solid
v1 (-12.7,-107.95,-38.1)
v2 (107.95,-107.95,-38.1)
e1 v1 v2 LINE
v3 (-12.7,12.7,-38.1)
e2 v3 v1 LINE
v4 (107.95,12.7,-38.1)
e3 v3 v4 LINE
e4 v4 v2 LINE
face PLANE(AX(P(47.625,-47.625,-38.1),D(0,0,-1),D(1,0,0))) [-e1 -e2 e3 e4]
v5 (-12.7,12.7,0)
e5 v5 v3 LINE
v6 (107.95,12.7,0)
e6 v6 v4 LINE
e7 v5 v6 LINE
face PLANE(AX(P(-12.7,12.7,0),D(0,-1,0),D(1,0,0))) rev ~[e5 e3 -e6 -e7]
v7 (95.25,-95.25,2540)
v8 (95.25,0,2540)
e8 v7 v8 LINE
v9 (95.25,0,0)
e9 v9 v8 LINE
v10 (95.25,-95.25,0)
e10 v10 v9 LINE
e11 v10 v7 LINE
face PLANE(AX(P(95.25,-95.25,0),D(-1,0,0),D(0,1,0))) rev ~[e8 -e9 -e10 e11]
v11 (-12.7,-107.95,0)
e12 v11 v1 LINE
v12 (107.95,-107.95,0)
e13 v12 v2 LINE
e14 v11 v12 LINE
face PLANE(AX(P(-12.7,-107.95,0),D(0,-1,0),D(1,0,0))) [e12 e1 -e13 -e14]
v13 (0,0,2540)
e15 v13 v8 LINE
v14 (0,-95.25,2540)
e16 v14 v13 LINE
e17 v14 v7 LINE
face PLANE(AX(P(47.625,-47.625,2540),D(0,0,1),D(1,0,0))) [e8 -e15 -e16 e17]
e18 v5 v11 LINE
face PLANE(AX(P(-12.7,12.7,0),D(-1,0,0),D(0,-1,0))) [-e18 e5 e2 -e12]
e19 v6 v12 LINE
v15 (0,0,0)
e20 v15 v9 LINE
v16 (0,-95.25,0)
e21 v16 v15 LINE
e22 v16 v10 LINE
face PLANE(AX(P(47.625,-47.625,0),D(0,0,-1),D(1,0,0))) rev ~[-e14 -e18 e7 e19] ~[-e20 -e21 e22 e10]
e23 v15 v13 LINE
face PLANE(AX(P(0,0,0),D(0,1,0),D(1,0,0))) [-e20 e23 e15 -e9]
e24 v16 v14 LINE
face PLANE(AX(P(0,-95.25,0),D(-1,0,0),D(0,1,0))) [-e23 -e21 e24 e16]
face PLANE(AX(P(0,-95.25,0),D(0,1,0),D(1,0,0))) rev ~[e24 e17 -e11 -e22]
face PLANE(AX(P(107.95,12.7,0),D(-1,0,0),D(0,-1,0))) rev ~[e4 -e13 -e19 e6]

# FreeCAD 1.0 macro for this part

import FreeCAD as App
import Part
import Sketcher
from FreeCAD import Vector
Q = App.Units.Quantity


def add_polygon(sketch, points):
    """Adds a closed chain of lines whose ends are joined by coincident constraints."""
    first, n = sketch.GeometryCount, len(points)
    for a, b in zip(points, points[1:] + points[:1]):
        sketch.addGeometry(Part.LineSegment(App.Vector(*a, 0), App.Vector(*b, 0)), False)
    for i in range(n):
        sketch.addConstraint(Sketcher.Constraint("Coincident", first + i, 2, first + (i + 1) % n, 1))

doc = App.newDocument("Part")
body = doc.addObject("PartDesign::Body", "Body")

# Sketch on XY plane
sketch1 = body.newObject("Sketcher::SketchObject", "Sketch")
sketch1.AttachmentSupport = (doc.getObject("XY_Plane"), [""])
sketch1.MapMode = "FlatFace"
add_polygon(sketch1, [(0, 0), (0, -95), (95, -95), (95, 0)])  # lines 0-3
sketch1.addConstraint(Sketcher.Constraint("Vertical", 0))
sketch1.addConstraint(Sketcher.Constraint("Horizontal", 1))
sketch1.addConstraint(Sketcher.Constraint("Vertical", 2))
sketch1.addConstraint(Sketcher.Constraint("Horizontal", 3))
sketch1.addConstraint(Sketcher.Constraint("Coincident", 3, 2, -1, 1))
sketch1.addConstraint(Sketcher.Constraint("Equal", 3, 0))
sketch1.addConstraint(Sketcher.Constraint("DistanceX", 1, 1, 1, 2, Q("3.75 in")))
pad1 = body.newObject("PartDesign::Pad", "Pad")
pad1.Profile = sketch1
pad1.Length = Q("100 in")

# Sketch on XY plane
sketch2 = body.newObject("Sketcher::SketchObject", "Sketch001")
sketch2.AttachmentSupport = (doc.getObject("XY_Plane"), [""])
sketch2.MapMode = "FlatFace"
add_polygon(sketch2, [(-13, -108), (-13, 13), (108, 13), (108, -108)])  # lines 0-3
sketch2.addConstraint(Sketcher.Constraint("Vertical", 0))
sketch2.addConstraint(Sketcher.Constraint("Horizontal", 1))
sketch2.addConstraint(Sketcher.Constraint("Vertical", 2))
sketch2.addConstraint(Sketcher.Constraint("Horizontal", 3))
sketch2.addConstraint(Sketcher.Constraint("Equal", 3, 0))
sketch2.addConstraint(Sketcher.Constraint("DistanceX", 1, 1, 1, 2, Q("4.75 in")))
sketch2.addConstraint(Sketcher.Constraint("DistanceX", 0, 2, -1, 1, Q("0.5 in")))
sketch2.addConstraint(Sketcher.Constraint("DistanceY", -1, 1, 0, 2, Q("0.5 in")))
pad2 = body.newObject("PartDesign::Pad", "Pad001")
pad2.Profile = sketch2
pad2.Length = Q("1.5 in")
pad2.Reversed = True

doc.recompute()
